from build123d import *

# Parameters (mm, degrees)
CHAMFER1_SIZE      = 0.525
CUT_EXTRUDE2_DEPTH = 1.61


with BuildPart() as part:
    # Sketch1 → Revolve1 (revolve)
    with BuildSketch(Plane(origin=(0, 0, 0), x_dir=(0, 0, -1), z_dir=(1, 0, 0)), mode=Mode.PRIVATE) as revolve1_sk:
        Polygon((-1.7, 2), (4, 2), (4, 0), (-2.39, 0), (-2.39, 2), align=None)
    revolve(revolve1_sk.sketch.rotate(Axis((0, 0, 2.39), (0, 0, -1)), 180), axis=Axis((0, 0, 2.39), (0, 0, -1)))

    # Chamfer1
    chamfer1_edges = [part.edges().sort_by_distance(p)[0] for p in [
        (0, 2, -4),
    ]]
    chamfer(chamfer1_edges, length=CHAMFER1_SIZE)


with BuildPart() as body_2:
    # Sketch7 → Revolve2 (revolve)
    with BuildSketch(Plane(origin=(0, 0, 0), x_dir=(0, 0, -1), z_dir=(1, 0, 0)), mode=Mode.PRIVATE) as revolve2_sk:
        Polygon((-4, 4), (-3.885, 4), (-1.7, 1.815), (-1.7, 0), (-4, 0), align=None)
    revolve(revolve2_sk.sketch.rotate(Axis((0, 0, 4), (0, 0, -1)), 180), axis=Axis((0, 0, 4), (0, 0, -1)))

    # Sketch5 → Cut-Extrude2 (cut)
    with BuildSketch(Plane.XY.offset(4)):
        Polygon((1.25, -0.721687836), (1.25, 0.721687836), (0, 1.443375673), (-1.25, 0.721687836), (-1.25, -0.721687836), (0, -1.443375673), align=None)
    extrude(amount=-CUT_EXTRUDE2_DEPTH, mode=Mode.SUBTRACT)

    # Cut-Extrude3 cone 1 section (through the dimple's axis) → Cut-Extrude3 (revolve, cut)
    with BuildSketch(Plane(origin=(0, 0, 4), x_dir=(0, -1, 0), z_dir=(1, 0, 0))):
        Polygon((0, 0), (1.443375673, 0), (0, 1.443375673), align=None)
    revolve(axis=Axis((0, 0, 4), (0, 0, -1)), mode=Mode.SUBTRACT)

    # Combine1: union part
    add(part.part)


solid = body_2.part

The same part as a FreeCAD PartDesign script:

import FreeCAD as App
import Part
import Sketcher

V = App.Vector
Q = App.Units.Quantity


def edges_at(feature, points):
    """Names of the edges that pass closest to the given points."""
    edges = feature.Shape.Edges
    near = lambda p: min(range(len(edges)), key=lambda i: edges[i].distToShape(Part.Vertex(*p))[0])
    return sorted({f"Edge{near(p) + 1}" for p in points})


def add_polygon(sketch, points):
    """Adds a closed chain of lines whose ends are joined by coincident constraints."""
    first, n = sketch.GeometryCount, len(points)
    for a, b in zip(points, points[1:] + points[:1]):
        sketch.addGeometry(Part.LineSegment(App.Vector(*a, 0), App.Vector(*b, 0)), False)
    for i in range(n):
        sketch.addConstraint(Sketcher.Constraint("Coincident", first + i, 2, first + (i + 1) % n, 1))

doc = App.newDocument("Part")
body = doc.addObject("PartDesign::Body", "Body")

# Sketch on YZ plane
sketch1 = body.newObject("Sketcher::SketchObject", "Sketch")
sketch1.AttachmentSupport = (doc.getObject("YZ_Plane"), [""])
sketch1.MapMode = "FlatFace"
add_polygon(sketch1, [(2, -4), (2, 2.4), (0, 2.4), (0, -4)])  # lines 0-3
sketch1.addConstraint([
    Sketcher.Constraint("Vertical", 0),
    Sketcher.Constraint("Horizontal", 1),
    Sketcher.Constraint("Vertical", 2),
    Sketcher.Constraint("Horizontal", 3),
    Sketcher.Constraint("PointOnObject", 1, 2, -2),
    Sketcher.Constraint("DistanceX", 1, 2, 1, 1, Q("2 mm")),
    Sketcher.Constraint("DistanceY", 2, 2, -1, 1, Q("4 mm")),
    Sketcher.Constraint("DistanceY", 0, 1, 0, 2, Q("6.39 mm")),
])
revolution = body.newObject("PartDesign::Revolution", "Revolution")
revolution.Profile = sketch1
revolution.ReferenceAxis = (sketch1, ["V_Axis"])
revolution.Angle = 360
doc.recompute()

chamfer = body.newObject("PartDesign::Chamfer", "Chamfer")
chamfer.Base = (revolution, edges_at(revolution, [(0, 2, -4)]))
chamfer.Size = 0.525
body2 = doc.addObject("PartDesign::Body", "Body001")

# Sketch on YZ plane
sketch2 = body2.newObject("Sketcher::SketchObject", "Sketch001")
sketch2.AttachmentSupport = (doc.getObject("YZ_Plane001"), [""])
sketch2.MapMode = "FlatFace"
add_polygon(sketch2, [(4, 3.88), (4, 4), (0, 4), (0, 1.7), (1.81, 1.7)])  # lines 0-4
sketch2.addConstraint([
    Sketcher.Constraint("Vertical", 0),
    Sketcher.Constraint("Horizontal", 1),
    Sketcher.Constraint("Vertical", 2),
    Sketcher.Constraint("Horizontal", 3),
    Sketcher.Constraint("PointOnObject", 1, 2, -2),
    Sketcher.Constraint("DistanceX", 1, 2, 1, 1, Q("4 mm")),
    Sketcher.Constraint("Angle", 4, Q("45 deg")),
    Sketcher.Constraint("DistanceY", 2, 2, 2, 1, Q("2.3 mm")),
    Sketcher.Constraint("DistanceY", -1, 1, 0, 2, Q("4 mm")),
    Sketcher.Constraint("DistanceX", 3, 1, 3, 2, Q("1.815 mm")),
])
revolution2 = body2.newObject("PartDesign::Revolution", "Revolution001")
revolution2.Profile = sketch2
revolution2.ReferenceAxis = (sketch2, ["V_Axis"])
revolution2.Angle = 360

# Sketch on XY plane
sketch3 = body2.newObject("Sketcher::SketchObject", "Sketch002")
sketch3.AttachmentSupport = (doc.getObject("XY_Plane001"), [""])
sketch3.MapMode = "FlatFace"
sketch3.AttachmentOffset = App.Placement(V(0, 0, 4), App.Rotation())
add_polygon(sketch3, [(1.2, -0.7), (1.2, 0.7), (0, 1.4), (-1.2, 0.7), (-1.2, -0.7), (0, -1.4)])  # lines 0-5
sketch3.addConstraint([
    Sketcher.Constraint("Vertical", 0),
    Sketcher.Constraint("Vertical", 3),
    Sketcher.Constraint("Symmetric", 0, 2, 3, 2, -1, 1),
    Sketcher.Constraint("Symmetric", 1, 2, 4, 2, -1, 1),
    Sketcher.Constraint("PointOnObject", 1, 2, -2),
    Sketcher.Constraint("Parallel", 2, 5),
    Sketcher.Constraint("Horizontal", 0, 2, 2, 2),
    Sketcher.Constraint("Angle", 1, Q("150 deg")),
    Sketcher.Constraint("DistanceX", 2, 2, 0, 2, Q("2.5 mm")),
    Sketcher.Constraint("DistanceY", 0, 1, 0, 2, Q("1.443376 mm")),
])
pocket1 = body2.newObject("PartDesign::Pocket", "Pocket")
pocket1.Profile = sketch3
pocket1.Length = 1.61

# Sketch on YZ plane
sketch4 = body2.newObject("Sketcher::SketchObject", "Sketch003")
sketch4.AttachmentSupport = (doc.getObject("YZ_Plane001"), [""])
sketch4.MapMode = "FlatFace"
add_polygon(sketch4, [(0, 4), (-1.4, 4), (0, 2.6)])  # lines 0-2
sketch4.addConstraint([
    Sketcher.Constraint("Horizontal", 0),
    Sketcher.Constraint("Vertical", 2),
    Sketcher.Constraint("PointOnObject", 1, 2, -2),
    Sketcher.Constraint("Equal", 0, 2),
    Sketcher.Constraint("DistanceY", -1, 1, 0, 2, Q("4 mm")),
    Sketcher.Constraint("Distance", 1, Q("2.041241 mm")),
])
groove = body2.newObject("PartDesign::Groove", "Groove")
groove.Profile = sketch4
groove.ReferenceAxis = (sketch4, ["V_Axis"])
groove.Angle = 360
doc.recompute()

boolean = body2.newObject("PartDesign::Boolean", "Boolean")
boolean.Type = "Fuse"
boolean.addObjects([body])

doc.recompute()
